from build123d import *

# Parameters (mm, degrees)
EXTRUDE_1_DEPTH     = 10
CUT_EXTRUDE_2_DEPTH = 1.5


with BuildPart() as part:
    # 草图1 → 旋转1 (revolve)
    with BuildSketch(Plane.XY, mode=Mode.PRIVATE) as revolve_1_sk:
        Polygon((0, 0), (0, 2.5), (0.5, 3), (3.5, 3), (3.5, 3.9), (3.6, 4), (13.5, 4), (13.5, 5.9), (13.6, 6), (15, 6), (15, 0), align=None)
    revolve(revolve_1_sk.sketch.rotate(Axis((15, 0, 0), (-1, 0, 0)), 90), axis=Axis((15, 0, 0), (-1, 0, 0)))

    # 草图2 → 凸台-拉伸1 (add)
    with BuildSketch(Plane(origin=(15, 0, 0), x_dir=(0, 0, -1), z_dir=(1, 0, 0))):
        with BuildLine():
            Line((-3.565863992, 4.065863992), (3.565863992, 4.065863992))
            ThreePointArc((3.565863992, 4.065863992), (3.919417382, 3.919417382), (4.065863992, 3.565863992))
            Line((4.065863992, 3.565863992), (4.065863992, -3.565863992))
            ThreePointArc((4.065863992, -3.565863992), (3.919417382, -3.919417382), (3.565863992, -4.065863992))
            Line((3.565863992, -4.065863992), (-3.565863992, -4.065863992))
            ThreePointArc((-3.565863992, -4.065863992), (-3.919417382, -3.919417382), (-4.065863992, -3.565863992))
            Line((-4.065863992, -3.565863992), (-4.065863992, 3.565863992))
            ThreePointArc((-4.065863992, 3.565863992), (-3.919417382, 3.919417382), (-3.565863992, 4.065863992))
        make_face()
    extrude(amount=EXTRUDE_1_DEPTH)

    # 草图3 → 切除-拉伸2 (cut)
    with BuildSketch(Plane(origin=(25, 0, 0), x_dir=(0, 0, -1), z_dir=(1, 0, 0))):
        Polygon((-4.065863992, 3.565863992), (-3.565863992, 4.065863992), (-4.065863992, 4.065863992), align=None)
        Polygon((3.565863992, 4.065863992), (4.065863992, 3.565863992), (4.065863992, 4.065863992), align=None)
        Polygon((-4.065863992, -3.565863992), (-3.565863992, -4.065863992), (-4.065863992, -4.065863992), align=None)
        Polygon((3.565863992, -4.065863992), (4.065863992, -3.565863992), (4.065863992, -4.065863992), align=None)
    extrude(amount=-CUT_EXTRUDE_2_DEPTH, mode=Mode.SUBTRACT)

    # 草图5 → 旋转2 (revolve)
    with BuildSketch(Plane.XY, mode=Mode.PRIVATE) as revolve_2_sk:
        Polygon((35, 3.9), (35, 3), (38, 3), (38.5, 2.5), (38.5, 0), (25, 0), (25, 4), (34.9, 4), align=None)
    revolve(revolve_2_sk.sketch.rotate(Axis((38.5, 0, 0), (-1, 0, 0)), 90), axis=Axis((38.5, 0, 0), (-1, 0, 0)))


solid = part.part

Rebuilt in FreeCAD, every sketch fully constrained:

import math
import FreeCAD as App
import Part
import Sketcher
from FreeCAD import Vector
Q = App.Units.Quantity

doc = App.newDocument("Part")
body = doc.addObject("PartDesign::Body", "Body")

# Sketch on XY plane
sketch1 = body.newObject("Sketcher::SketchObject", "Sketch")
sketch1.AttachmentSupport = (doc.getObject("XY_Plane"), [""])
sketch1.MapMode = "FlatFace"
sketch1.addGeometry(Part.LineSegment(Vector(0, 2.5, 0), Vector(0, 0, 0)), False)
sketch1.addGeometry(Part.LineSegment(Vector(0, 0, 0), Vector(15, 0, 0)), False)
sketch1.addGeometry(Part.LineSegment(Vector(15, 0, 0), Vector(15, 6, 0)), False)
sketch1.addGeometry(Part.LineSegment(Vector(15, 6, 0), Vector(13.6, 6, 0)), False)
sketch1.addGeometry(Part.LineSegment(Vector(13.6, 6, 0), Vector(13.5, 5.9, 0)), False)
sketch1.addGeometry(Part.LineSegment(Vector(13.5, 5.9, 0), Vector(13.5, 4, 0)), False)
sketch1.addGeometry(Part.LineSegment(Vector(13.5, 4, 0), Vector(3.6, 4, 0)), False)
sketch1.addGeometry(Part.LineSegment(Vector(3.6, 4, 0), Vector(3.5, 3.9, 0)), False)
sketch1.addGeometry(Part.LineSegment(Vector(3.5, 3.9, 0), Vector(3.5, 3, 0)), False)
sketch1.addGeometry(Part.LineSegment(Vector(3.5, 3, 0), Vector(0.5, 3, 0)), False)
sketch1.addGeometry(Part.LineSegment(Vector(0.5, 3, 0), Vector(0, 2.5, 0)), False)
sketch1.addConstraint(Sketcher.Constraint("Coincident", 0, 2, 1, 1))
sketch1.addConstraint(Sketcher.Constraint("Coincident", 1, 2, 2, 1))
sketch1.addConstraint(Sketcher.Constraint("Coincident", 2, 2, 3, 1))
sketch1.addConstraint(Sketcher.Constraint("Coincident", 3, 2, 4, 1))
sketch1.addConstraint(Sketcher.Constraint("Coincident", 4, 2, 5, 1))
sketch1.addConstraint(Sketcher.Constraint("Coincident", 5, 2, 6, 1))
sketch1.addConstraint(Sketcher.Constraint("Coincident", 6, 2, 7, 1))
sketch1.addConstraint(Sketcher.Constraint("Coincident", 7, 2, 8, 1))
sketch1.addConstraint(Sketcher.Constraint("Coincident", 8, 2, 9, 1))
sketch1.addConstraint(Sketcher.Constraint("Coincident", 9, 2, 10, 1))
sketch1.addConstraint(Sketcher.Constraint("Coincident", 10, 2, 0, 1))
sketch1.addConstraint(Sketcher.Constraint("Vertical", 0))
sketch1.addConstraint(Sketcher.Constraint("Horizontal", 1))
sketch1.addConstraint(Sketcher.Constraint("Vertical", 2))
sketch1.addConstraint(Sketcher.Constraint("Horizontal", 3))
sketch1.addConstraint(Sketcher.Constraint("Vertical", 5))
sketch1.addConstraint(Sketcher.Constraint("Horizontal", 6))
sketch1.addConstraint(Sketcher.Constraint("Vertical", 8))
sketch1.addConstraint(Sketcher.Constraint("Horizontal", 9))
sketch1.addConstraint(Sketcher.Constraint("Coincident", 0, 2, -1, 1))
sketch1.addConstraint(Sketcher.Constraint("Parallel", 4, 7))
sketch1.addConstraint(Sketcher.Constraint("Parallel", 7, 10))
sketch1.addConstraint(Sketcher.Constraint("Equal", 4, 7))
sketch1.addConstraint(Sketcher.Constraint("DistanceX", 1, 1, 1, 2, Q("15 mm")))
sketch1.addConstraint(Sketcher.Constraint("DistanceX", 9, 2, 9, 1, Q("3 mm")))
sketch1.addConstraint(Sketcher.Constraint("DistanceY", 2, 1, 2, 2, Q("6 mm")))
sketch1.addConstraint(Sketcher.Constraint("Angle", 4, Q("-135 deg")))
sketch1.addConstraint(Sketcher.Constraint("DistanceX", 3, 2, 3, 1, Q("1.4 mm")))
sketch1.addConstraint(Sketcher.Constraint("DistanceX", 6, 2, 6, 1, Q("9.9 mm")))
sketch1.addConstraint(Sketcher.Constraint("DistanceY", 0, 2, 0, 1, Q("2.5 mm")))
sketch1.addConstraint(Sketcher.Constraint("DistanceY", 5, 2, 5, 1, Q("1.9 mm")))
sketch1.addConstraint(Sketcher.Constraint("DistanceY", -1, 1, 5, 2, Q("4 mm")))
revolution = body.newObject("PartDesign::Revolution", "Revolution")
revolution.Profile = sketch1
revolution.ReferenceAxis = (sketch1, ["H_Axis"])
revolution.Angle = 360

# Sketch on YZ plane
sketch2 = body.newObject("Sketcher::SketchObject", "Sketch001")
sketch2.AttachmentSupport = (doc.getObject("YZ_Plane"), [""])
sketch2.MapMode = "FlatFace"
sketch2.AttachmentOffset = App.Placement(Vector(0, 0, 15), App.Rotation())
sketch2.addGeometry(Part.LineSegment(Vector(4.1, -3.6, 0), Vector(4.1, 3.6, 0)), False)
sketch2.addGeometry(Part.ArcOfCircle(Part.Circle(Vector(3.6, 3.6, 0), Vector(0, 0, 1), 0.5), math.radians(0), math.radians(90)), False)
sketch2.addGeometry(Part.LineSegment(Vector(3.6, 4.1, 0), Vector(-3.6, 4.1, 0)), False)
sketch2.addGeometry(Part.ArcOfCircle(Part.Circle(Vector(-3.6, 3.6, 0), Vector(0, 0, 1), 0.5), math.radians(90), math.radians(180)), False)
sketch2.addGeometry(Part.LineSegment(Vector(-4.1, 3.6, 0), Vector(-4.1, -3.6, 0)), False)
sketch2.addGeometry(Part.ArcOfCircle(Part.Circle(Vector(-3.6, -3.6, 0), Vector(0, 0, 1), 0.5), math.radians(-180), math.radians(-90)), False)
sketch2.addGeometry(Part.LineSegment(Vector(-3.6, -4.1, 0), Vector(3.6, -4.1, 0)), False)
sketch2.addGeometry(Part.ArcOfCircle(Part.Circle(Vector(3.6, -3.6, 0), Vector(0, 0, 1), 0.5), math.radians(-90), math.radians(0)), False)
sketch2.addConstraint(Sketcher.Constraint("Tangent", 0, 2, 1, 1))
sketch2.addConstraint(Sketcher.Constraint("Tangent", 1, 2, 2, 1))
sketch2.addConstraint(Sketcher.Constraint("Tangent", 2, 2, 3, 1))
sketch2.addConstraint(Sketcher.Constraint("Tangent", 3, 2, 4, 1))
sketch2.addConstraint(Sketcher.Constraint("Tangent", 4, 2, 5, 1))
sketch2.addConstraint(Sketcher.Constraint("Tangent", 5, 2, 6, 1))
sketch2.addConstraint(Sketcher.Constraint("Tangent", 6, 2, 7, 1))
sketch2.addConstraint(Sketcher.Constraint("Tangent", 7, 2, 0, 1))
sketch2.addConstraint(Sketcher.Constraint("Vertical", 0))
sketch2.addConstraint(Sketcher.Constraint("Horizontal", 2))
sketch2.addConstraint(Sketcher.Constraint("Vertical", 4))
sketch2.addConstraint(Sketcher.Constraint("Horizontal", 6))
sketch2.addConstraint(Sketcher.Constraint("Equal", 1, 3))
sketch2.addConstraint(Sketcher.Constraint("Equal", 3, 5))
sketch2.addConstraint(Sketcher.Constraint("Equal", 5, 7))
sketch2.addConstraint(Sketcher.Constraint("Symmetric", 1, 3, 5, 3, -1, 1))
sketch2.addConstraint(Sketcher.Constraint("Equal", 6, 0))
sketch2.addConstraint(Sketcher.Constraint("Radius", 1, Q("0.5 mm")))
sketch2.addConstraint(Sketcher.Constraint("DistanceX", 2, 2, 2, 1, Q("7.131728 mm")))
pad1 = body.newObject("PartDesign::Pad", "Pad")
pad1.Profile = sketch2
pad1.Length = 10

# Sketch on YZ plane
sketch3 = body.newObject("Sketcher::SketchObject", "Sketch002")
sketch3.AttachmentSupport = (doc.getObject("YZ_Plane"), [""])
sketch3.MapMode = "FlatFace"
sketch3.AttachmentOffset = App.Placement(Vector(0, 0, 25), App.Rotation())
sketch3.addGeometry(Part.LineSegment(Vector(3.57, 4.07, 0), Vector(4.07, 3.57, 0)), False)
sketch3.addGeometry(Part.LineSegment(Vector(4.07, 3.57, 0), Vector(4.07, 4.07, 0)), False)
sketch3.addGeometry(Part.LineSegment(Vector(4.07, 4.07, 0), Vector(3.57, 4.07, 0)), False)
sketch3.addGeometry(Part.LineSegment(Vector(4.07, -3.57, 0), Vector(3.57, -4.07, 0)), False)
sketch3.addGeometry(Part.LineSegment(Vector(3.57, -4.07, 0), Vector(4.07, -4.07, 0)), False)
sketch3.addGeometry(Part.LineSegment(Vector(4.07, -4.07, 0), Vector(4.07, -3.57, 0)), False)
sketch3.addGeometry(Part.LineSegment(Vector(-4.07, 3.57, 0), Vector(-3.57, 4.07, 0)), False)
sketch3.addGeometry(Part.LineSegment(Vector(-3.57, 4.07, 0), Vector(-4.07, 4.07, 0)), False)
sketch3.addGeometry(Part.LineSegment(Vector(-4.07, 4.07, 0), Vector(-4.07, 3.57, 0)), False)
sketch3.addGeometry(Part.LineSegment(Vector(-3.57, -4.07, 0), Vector(-4.07, -3.57, 0)), False)
sketch3.addGeometry(Part.LineSegment(Vector(-4.07, -3.57, 0), Vector(-4.07, -4.07, 0)), False)
sketch3.addGeometry(Part.LineSegment(Vector(-4.07, -4.07, 0), Vector(-3.57, -4.07, 0)), False)
sketch3.addConstraint(Sketcher.Constraint("Coincident", 0, 2, 1, 1))
sketch3.addConstraint(Sketcher.Constraint("Coincident", 1, 2, 2, 1))
sketch3.addConstraint(Sketcher.Constraint("Coincident", 2, 2, 0, 1))
sketch3.addConstraint(Sketcher.Constraint("Coincident", 3, 2, 4, 1))
sketch3.addConstraint(Sketcher.Constraint("Coincident", 4, 2, 5, 1))
sketch3.addConstraint(Sketcher.Constraint("Coincident", 5, 2, 3, 1))
sketch3.addConstraint(Sketcher.Constraint("Coincident", 6, 2, 7, 1))
sketch3.addConstraint(Sketcher.Constraint("Coincident", 7, 2, 8, 1))
sketch3.addConstraint(Sketcher.Constraint("Coincident", 8, 2, 6, 1))
sketch3.addConstraint(Sketcher.Constraint("Coincident", 9, 2, 10, 1))
sketch3.addConstraint(Sketcher.Constraint("Coincident", 10, 2, 11, 1))
sketch3.addConstraint(Sketcher.Constraint("Coincident", 11, 2, 9, 1))
sketch3.addConstraint(Sketcher.Constraint("Vertical", 1))
sketch3.addConstraint(Sketcher.Constraint("Horizontal", 2))
sketch3.addConstraint(Sketcher.Constraint("Horizontal", 4))
sketch3.addConstraint(Sketcher.Constraint("Vertical", 5))
sketch3.addConstraint(Sketcher.Constraint("Horizontal", 7))
sketch3.addConstraint(Sketcher.Constraint("Vertical", 8))
sketch3.addConstraint(Sketcher.Constraint("Vertical", 10))
sketch3.addConstraint(Sketcher.Constraint("Horizontal", 11))
sketch3.addConstraint(Sketcher.Constraint("Symmetric", 3, 2, 6, 2, -1, 1))
sketch3.addConstraint(Sketcher.Constraint("Symmetric", 5, 2, 8, 2, -1, 1))
sketch3.addConstraint(Sketcher.Constraint("Symmetric", 0, 2, 9, 2, -1, 1))
sketch3.addConstraint(Sketcher.Constraint("Symmetric", 2, 2, 11, 2, -1, 1))
sketch3.addConstraint(Sketcher.Constraint("Symmetric", 2, 2, 6, 2, -2))
sketch3.addConstraint(Sketcher.Constraint("Symmetric", 0, 2, 8, 2, -2))
sketch3.addConstraint(Sketcher.Constraint("Perpendicular", 0, 3))
sketch3.addConstraint(Sketcher.Constraint("DistanceX", 2, 2, 2, 1, Q("0.5 mm")))
sketch3.addConstraint(Sketcher.Constraint("DistanceX", -1, 1, 0, 2, Q("4.065864 mm")))
sketch3.addConstraint(Sketcher.Constraint("DistanceY", -1, 1, 0, 2, Q("3.565864 mm")))
pocket1 = body.newObject("PartDesign::Pocket", "Pocket")
pocket1.Profile = sketch3
pocket1.Length = 1.5

# Sketch on XY plane
sketch4 = body.newObject("Sketcher::SketchObject", "Sketch003")
sketch4.AttachmentSupport = (doc.getObject("XY_Plane"), [""])
sketch4.MapMode = "FlatFace"
sketch4.addGeometry(Part.LineSegment(Vector(35, 3, 0), Vector(35, 3.9, 0)), False)
sketch4.addGeometry(Part.LineSegment(Vector(35, 3.9, 0), Vector(34.9, 4, 0)), False)
sketch4.addGeometry(Part.LineSegment(Vector(34.9, 4, 0), Vector(25, 4, 0)), False)
sketch4.addGeometry(Part.LineSegment(Vector(25, 4, 0), Vector(25, 0, 0)), False)
sketch4.addGeometry(Part.LineSegment(Vector(25, 0, 0), Vector(38.5, 0, 0)), False)
sketch4.addGeometry(Part.LineSegment(Vector(38.5, 0, 0), Vector(38.5, 2.5, 0)), False)
sketch4.addGeometry(Part.LineSegment(Vector(38.5, 2.5, 0), Vector(38, 3, 0)), False)
sketch4.addGeometry(Part.LineSegment(Vector(38, 3, 0), Vector(35, 3, 0)), False)
sketch4.addConstraint(Sketcher.Constraint("Coincident", 0, 2, 1, 1))
sketch4.addConstraint(Sketcher.Constraint("Coincident", 1, 2, 2, 1))
sketch4.addConstraint(Sketcher.Constraint("Coincident", 2, 2, 3, 1))
sketch4.addConstraint(Sketcher.Constraint("Coincident", 3, 2, 4, 1))
sketch4.addConstraint(Sketcher.Constraint("Coincident", 4, 2, 5, 1))
sketch4.addConstraint(Sketcher.Constraint("Coincident", 5, 2, 6, 1))
sketch4.addConstraint(Sketcher.Constraint("Coincident", 6, 2, 7, 1))
sketch4.addConstraint(Sketcher.Constraint("Coincident", 7, 2, 0, 1))
sketch4.addConstraint(Sketcher.Constraint("Vertical", 0))
sketch4.addConstraint(Sketcher.Constraint("Horizontal", 2))
sketch4.addConstraint(Sketcher.Constraint("Vertical", 3))
sketch4.addConstraint(Sketcher.Constraint("Horizontal", 4))
sketch4.addConstraint(Sketcher.Constraint("Vertical", 5))
sketch4.addConstraint(Sketcher.Constraint("Horizontal", 7))
sketch4.addConstraint(Sketcher.Constraint("PointOnObject", 3, 2, -1))
sketch4.addConstraint(Sketcher.Constraint("Parallel", 1, 6))
sketch4.addConstraint(Sketcher.Constraint("DistanceX", 7, 2, 7, 1, Q("3 mm")))
sketch4.addConstraint(Sketcher.Constraint("DistanceY", 3, 2, 3, 1, Q("4 mm")))
sketch4.addConstraint(Sketcher.Constraint("Angle", 1, Q("135 deg")))
sketch4.addConstraint(Sketcher.Constraint("DistanceX", 2, 2, 2, 1, Q("9.9 mm")))
sketch4.addConstraint(Sketcher.Constraint("DistanceX", 4, 1, 4, 2, Q("13.5 mm")))
sketch4.addConstraint(Sketcher.Constraint("DistanceY", 0, 1, 0, 2, Q("0.9 mm")))
sketch4.addConstraint(Sketcher.Constraint("DistanceX", -1, 1, 0, 2, Q("35 mm")))
sketch4.addConstraint(Sketcher.Constraint("DistanceX", -1, 1, 2, 2, Q("25 mm")))
revolution2 = body.newObject("PartDesign::Revolution", "Revolution001")
revolution2.Profile = sketch4
revolution2.ReferenceAxis = (sketch4, ["H_Axis"])
revolution2.Angle = 360

doc.recompute()
